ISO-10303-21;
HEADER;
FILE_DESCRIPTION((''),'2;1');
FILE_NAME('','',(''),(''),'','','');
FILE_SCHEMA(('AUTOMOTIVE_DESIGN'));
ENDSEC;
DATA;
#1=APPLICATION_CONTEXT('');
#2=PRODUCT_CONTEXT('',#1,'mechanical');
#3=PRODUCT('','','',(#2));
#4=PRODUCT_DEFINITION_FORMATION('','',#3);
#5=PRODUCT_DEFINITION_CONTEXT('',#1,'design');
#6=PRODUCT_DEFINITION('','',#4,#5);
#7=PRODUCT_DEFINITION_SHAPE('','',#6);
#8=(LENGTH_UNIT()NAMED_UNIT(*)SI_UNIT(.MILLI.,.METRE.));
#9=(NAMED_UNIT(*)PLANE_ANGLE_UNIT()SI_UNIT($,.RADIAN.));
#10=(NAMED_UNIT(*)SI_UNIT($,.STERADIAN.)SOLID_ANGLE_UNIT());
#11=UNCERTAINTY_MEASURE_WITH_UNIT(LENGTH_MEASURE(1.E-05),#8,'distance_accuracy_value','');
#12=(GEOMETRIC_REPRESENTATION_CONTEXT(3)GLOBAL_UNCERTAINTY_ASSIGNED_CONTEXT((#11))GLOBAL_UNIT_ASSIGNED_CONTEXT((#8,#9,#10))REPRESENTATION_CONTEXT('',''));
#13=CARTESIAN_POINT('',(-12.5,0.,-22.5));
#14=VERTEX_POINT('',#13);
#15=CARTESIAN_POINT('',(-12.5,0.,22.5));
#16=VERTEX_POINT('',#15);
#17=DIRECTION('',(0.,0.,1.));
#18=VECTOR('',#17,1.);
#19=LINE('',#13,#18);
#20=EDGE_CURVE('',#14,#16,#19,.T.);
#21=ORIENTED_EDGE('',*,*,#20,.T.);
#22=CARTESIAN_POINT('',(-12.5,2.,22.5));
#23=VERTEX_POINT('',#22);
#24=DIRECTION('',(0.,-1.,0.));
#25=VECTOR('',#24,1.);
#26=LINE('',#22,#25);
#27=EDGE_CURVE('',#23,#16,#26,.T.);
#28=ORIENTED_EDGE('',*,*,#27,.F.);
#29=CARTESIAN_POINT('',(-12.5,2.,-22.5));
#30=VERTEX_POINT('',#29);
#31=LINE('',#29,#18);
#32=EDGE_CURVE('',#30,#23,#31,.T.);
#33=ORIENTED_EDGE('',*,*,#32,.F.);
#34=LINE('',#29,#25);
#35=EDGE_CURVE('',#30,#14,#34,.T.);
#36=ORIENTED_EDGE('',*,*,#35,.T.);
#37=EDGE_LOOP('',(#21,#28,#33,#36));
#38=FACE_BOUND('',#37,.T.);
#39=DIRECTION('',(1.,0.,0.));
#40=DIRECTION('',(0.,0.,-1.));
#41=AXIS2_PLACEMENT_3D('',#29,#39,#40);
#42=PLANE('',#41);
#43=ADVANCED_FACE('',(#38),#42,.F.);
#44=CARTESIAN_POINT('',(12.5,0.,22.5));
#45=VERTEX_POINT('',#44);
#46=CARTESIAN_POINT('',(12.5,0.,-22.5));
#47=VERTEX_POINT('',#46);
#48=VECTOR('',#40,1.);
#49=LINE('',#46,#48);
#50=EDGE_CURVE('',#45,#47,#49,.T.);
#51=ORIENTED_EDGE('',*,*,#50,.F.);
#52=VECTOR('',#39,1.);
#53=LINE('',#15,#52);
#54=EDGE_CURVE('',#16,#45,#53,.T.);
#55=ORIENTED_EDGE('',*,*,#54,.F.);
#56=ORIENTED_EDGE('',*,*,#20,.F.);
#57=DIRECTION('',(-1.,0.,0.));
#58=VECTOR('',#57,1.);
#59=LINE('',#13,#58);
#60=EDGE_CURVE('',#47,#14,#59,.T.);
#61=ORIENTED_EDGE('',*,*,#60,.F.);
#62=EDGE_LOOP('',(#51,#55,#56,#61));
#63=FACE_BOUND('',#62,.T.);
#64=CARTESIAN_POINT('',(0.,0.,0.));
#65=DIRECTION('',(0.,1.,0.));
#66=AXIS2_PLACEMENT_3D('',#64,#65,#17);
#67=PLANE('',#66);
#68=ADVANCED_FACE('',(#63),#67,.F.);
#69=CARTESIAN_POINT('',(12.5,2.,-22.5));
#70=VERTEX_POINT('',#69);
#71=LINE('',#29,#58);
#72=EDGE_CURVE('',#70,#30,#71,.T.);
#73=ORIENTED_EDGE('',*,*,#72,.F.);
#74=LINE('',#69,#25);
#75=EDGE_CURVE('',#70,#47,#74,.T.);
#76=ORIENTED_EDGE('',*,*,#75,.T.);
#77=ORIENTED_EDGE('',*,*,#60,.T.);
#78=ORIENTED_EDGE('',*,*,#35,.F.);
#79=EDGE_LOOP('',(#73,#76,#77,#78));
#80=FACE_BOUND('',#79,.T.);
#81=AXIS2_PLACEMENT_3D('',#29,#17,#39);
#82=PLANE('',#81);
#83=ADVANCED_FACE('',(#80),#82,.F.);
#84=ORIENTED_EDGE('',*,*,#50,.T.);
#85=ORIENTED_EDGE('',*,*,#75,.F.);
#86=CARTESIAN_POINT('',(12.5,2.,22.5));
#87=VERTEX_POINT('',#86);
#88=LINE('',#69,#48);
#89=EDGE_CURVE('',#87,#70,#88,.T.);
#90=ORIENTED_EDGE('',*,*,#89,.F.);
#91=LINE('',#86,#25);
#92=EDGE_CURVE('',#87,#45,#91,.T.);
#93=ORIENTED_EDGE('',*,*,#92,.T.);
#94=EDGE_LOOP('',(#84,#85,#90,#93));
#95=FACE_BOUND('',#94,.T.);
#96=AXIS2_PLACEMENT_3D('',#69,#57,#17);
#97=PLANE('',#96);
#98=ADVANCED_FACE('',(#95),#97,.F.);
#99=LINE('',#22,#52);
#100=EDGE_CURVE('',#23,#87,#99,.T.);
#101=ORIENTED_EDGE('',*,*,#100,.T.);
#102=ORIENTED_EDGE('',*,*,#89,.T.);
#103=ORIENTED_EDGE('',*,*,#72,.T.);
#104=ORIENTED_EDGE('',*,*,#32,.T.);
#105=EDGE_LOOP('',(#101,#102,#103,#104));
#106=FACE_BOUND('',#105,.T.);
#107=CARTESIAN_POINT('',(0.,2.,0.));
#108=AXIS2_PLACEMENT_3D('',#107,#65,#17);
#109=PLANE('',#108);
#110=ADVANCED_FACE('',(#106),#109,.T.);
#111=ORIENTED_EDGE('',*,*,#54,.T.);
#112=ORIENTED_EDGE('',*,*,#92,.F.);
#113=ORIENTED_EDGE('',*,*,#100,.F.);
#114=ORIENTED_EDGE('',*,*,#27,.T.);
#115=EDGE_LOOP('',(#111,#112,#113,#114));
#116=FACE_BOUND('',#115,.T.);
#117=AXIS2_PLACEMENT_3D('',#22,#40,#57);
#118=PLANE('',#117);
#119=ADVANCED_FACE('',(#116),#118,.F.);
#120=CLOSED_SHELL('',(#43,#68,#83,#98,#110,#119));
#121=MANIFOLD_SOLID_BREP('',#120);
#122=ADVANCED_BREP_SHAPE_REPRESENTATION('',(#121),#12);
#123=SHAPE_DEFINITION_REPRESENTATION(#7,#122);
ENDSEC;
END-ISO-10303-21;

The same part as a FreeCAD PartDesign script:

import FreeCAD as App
import Part
import Sketcher

V = App.Vector


def add_polygon(sketch, points):
    """Adds a closed chain of lines whose ends are joined by coincident constraints."""
    first, n = sketch.GeometryCount, len(points)
    for a, b in zip(points, points[1:] + points[:1]):
        sketch.addGeometry(Part.LineSegment(App.Vector(*a, 0), App.Vector(*b, 0)), False)
    for i in range(n):
        sketch.addConstraint(Sketcher.Constraint("Coincident", first + i, 2, first + (i + 1) % n, 1))

doc = App.newDocument("Part")
body = doc.addObject("PartDesign::Body", "Body")

# Sketch on XZ plane
sketch1 = body.newObject("Sketcher::SketchObject", "Sketch")
sketch1.AttachmentSupport = (doc.getObject("XZ_Plane"), [""])
sketch1.MapMode = "FlatFace"
add_polygon(sketch1, [(-12, -22), (-12, 22), (12, 22), (12, -22)])  # lines 0-3
sketch1.addConstraint([
    Sketcher.Constraint("Vertical", 0),
    Sketcher.Constraint("Horizontal", 1),
    Sketcher.Constraint("Vertical", 2),
    Sketcher.Constraint("Horizontal", 3),
    Sketcher.Constraint("Symmetric", 0, 2, 2, 2, -1, 1),
    Sketcher.Constraint("DistanceX", 1, 1, 1, 2, 25.0),
    Sketcher.Constraint("DistanceY", 0, 1, 0, 2, 45.0),
])
pad1 = body.newObject("PartDesign::Pad", "Pad")
pad1.Profile = sketch1
pad1.Length = 2
pad1.Reversed = True

doc.recompute()
